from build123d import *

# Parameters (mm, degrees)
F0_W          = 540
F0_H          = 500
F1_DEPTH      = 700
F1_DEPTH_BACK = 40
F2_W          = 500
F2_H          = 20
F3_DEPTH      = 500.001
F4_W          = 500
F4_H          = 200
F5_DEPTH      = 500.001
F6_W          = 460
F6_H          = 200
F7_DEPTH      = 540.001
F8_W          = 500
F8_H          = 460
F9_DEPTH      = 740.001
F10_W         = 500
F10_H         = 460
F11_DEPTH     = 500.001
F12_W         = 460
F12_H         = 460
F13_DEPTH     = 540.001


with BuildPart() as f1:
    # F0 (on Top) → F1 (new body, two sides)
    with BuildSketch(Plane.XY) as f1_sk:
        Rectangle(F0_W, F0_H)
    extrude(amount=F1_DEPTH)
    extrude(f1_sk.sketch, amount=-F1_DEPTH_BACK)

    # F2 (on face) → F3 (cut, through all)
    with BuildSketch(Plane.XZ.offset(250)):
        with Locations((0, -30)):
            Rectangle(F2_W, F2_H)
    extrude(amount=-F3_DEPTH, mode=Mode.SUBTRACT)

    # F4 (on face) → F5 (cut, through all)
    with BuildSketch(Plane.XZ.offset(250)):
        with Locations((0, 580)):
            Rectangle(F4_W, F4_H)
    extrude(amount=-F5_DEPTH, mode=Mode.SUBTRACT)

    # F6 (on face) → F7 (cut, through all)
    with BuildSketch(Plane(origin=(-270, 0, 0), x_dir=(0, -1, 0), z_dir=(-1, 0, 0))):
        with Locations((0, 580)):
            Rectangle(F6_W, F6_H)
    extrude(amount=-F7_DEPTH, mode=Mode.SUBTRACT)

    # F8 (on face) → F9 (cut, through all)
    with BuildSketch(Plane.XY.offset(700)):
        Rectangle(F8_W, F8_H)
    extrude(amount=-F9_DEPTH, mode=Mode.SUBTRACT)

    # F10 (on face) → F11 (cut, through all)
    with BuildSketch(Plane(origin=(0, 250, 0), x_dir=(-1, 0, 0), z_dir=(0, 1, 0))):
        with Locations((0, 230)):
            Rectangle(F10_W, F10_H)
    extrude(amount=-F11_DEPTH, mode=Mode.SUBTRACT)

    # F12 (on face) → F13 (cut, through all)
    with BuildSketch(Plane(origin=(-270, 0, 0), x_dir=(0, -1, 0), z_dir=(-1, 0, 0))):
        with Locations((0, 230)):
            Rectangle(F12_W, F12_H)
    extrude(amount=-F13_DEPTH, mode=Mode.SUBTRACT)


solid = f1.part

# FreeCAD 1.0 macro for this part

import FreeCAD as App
import Part
import Sketcher
Q = App.Units.Quantity

doc = App.newDocument("Part")
body = doc.addObject("PartDesign::Body", "Body")

# Sketch on XY plane
sketch1 = body.newObject("Sketcher::SketchObject", "Sketch")
sketch1.AttachmentSupport = (doc.getObject("XY_Plane"), [""])
sketch1.MapMode = "FlatFace"
sketch1.addGeometry(Part.LineSegment(App.Vector(-270, 250, 0), App.Vector(-270, -250, 0)), False)
sketch1.addGeometry(Part.LineSegment(App.Vector(-270, -250, 0), App.Vector(270, -250, 0)), False)
sketch1.addGeometry(Part.LineSegment(App.Vector(270, -250, 0), App.Vector(270, 250, 0)), False)
sketch1.addGeometry(Part.LineSegment(App.Vector(270, 250, 0), App.Vector(-270, 250, 0)), False)
sketch1.addConstraint(Sketcher.Constraint("Coincident", 0, 2, 1, 1))
sketch1.addConstraint(Sketcher.Constraint("Coincident", 1, 2, 2, 1))
sketch1.addConstraint(Sketcher.Constraint("Coincident", 2, 2, 3, 1))
sketch1.addConstraint(Sketcher.Constraint("Coincident", 3, 2, 0, 1))
sketch1.addConstraint(Sketcher.Constraint("Vertical", 0))
sketch1.addConstraint(Sketcher.Constraint("Horizontal", 1))
sketch1.addConstraint(Sketcher.Constraint("Vertical", 2))
sketch1.addConstraint(Sketcher.Constraint("Horizontal", 3))
sketch1.addConstraint(Sketcher.Constraint("Symmetric", 0, 2, 2, 2, -1, 1))
sketch1.addConstraint(Sketcher.Constraint("DistanceX", 1, 1, 1, 2, Q("540 mm")))
sketch1.addConstraint(Sketcher.Constraint("DistanceY", 0, 2, 0, 1, Q("500 mm")))
pad1 = body.newObject("PartDesign::Pad", "Pad")
pad1.Profile = sketch1
pad1.Type = "TwoLengths"
pad1.Length = 700
pad1.Length2 = 40

# Sketch on XZ plane
sketch2 = body.newObject("Sketcher::SketchObject", "Sketch001")
sketch2.AttachmentSupport = (doc.getObject("XZ_Plane"), [""])
sketch2.MapMode = "FlatFace"
sketch2.AttachmentOffset = App.Placement(App.Vector(0, 0, 250), App.Rotation())
sketch2.addGeometry(Part.LineSegment(App.Vector(-250, -20, 0), App.Vector(-250, -40, 0)), False)
sketch2.addGeometry(Part.LineSegment(App.Vector(-250, -40, 0), App.Vector(250, -40, 0)), False)
sketch2.addGeometry(Part.LineSegment(App.Vector(250, -40, 0), App.Vector(250, -20, 0)), False)
sketch2.addGeometry(Part.LineSegment(App.Vector(250, -20, 0), App.Vector(-250, -20, 0)), False)
sketch2.addConstraint(Sketcher.Constraint("Coincident", 0, 2, 1, 1))
sketch2.addConstraint(Sketcher.Constraint("Coincident", 1, 2, 2, 1))
sketch2.addConstraint(Sketcher.Constraint("Coincident", 2, 2, 3, 1))
sketch2.addConstraint(Sketcher.Constraint("Coincident", 3, 2, 0, 1))
sketch2.addConstraint(Sketcher.Constraint("Vertical", 0))
sketch2.addConstraint(Sketcher.Constraint("Horizontal", 1))
sketch2.addConstraint(Sketcher.Constraint("Vertical", 2))
sketch2.addConstraint(Sketcher.Constraint("Horizontal", 3))
sketch2.addConstraint(Sketcher.Constraint("DistanceX", 1, 1, 1, 2, Q("500 mm")))
sketch2.addConstraint(Sketcher.Constraint("DistanceY", 0, 2, 0, 1, Q("20 mm")))
sketch2.addConstraint(Sketcher.Constraint("DistanceX", 0, 2, -1, 1, Q("250 mm")))
sketch2.addConstraint(Sketcher.Constraint("DistanceY", 0, 2, -1, 1, Q("40 mm")))
pocket1 = body.newObject("PartDesign::Pocket", "Pocket")
pocket1.Profile = sketch2
pocket1.Type = "ThroughAll"

# Sketch on XZ plane
sketch3 = body.newObject("Sketcher::SketchObject", "Sketch002")
sketch3.AttachmentSupport = (doc.getObject("XZ_Plane"), [""])
sketch3.MapMode = "FlatFace"
sketch3.AttachmentOffset = App.Placement(App.Vector(0, 0, 250), App.Rotation())
sketch3.addGeometry(Part.LineSegment(App.Vector(-250, 680, 0), App.Vector(-250, 480, 0)), False)
sketch3.addGeometry(Part.LineSegment(App.Vector(-250, 480, 0), App.Vector(250, 480, 0)), False)
sketch3.addGeometry(Part.LineSegment(App.Vector(250, 480, 0), App.Vector(250, 680, 0)), False)
sketch3.addGeometry(Part.LineSegment(App.Vector(250, 680, 0), App.Vector(-250, 680, 0)), False)
sketch3.addConstraint(Sketcher.Constraint("Coincident", 0, 2, 1, 1))
sketch3.addConstraint(Sketcher.Constraint("Coincident", 1, 2, 2, 1))
sketch3.addConstraint(Sketcher.Constraint("Coincident", 2, 2, 3, 1))
sketch3.addConstraint(Sketcher.Constraint("Coincident", 3, 2, 0, 1))
sketch3.addConstraint(Sketcher.Constraint("Vertical", 0))
sketch3.addConstraint(Sketcher.Constraint("Horizontal", 1))
sketch3.addConstraint(Sketcher.Constraint("Vertical", 2))
sketch3.addConstraint(Sketcher.Constraint("Horizontal", 3))
sketch3.addConstraint(Sketcher.Constraint("DistanceX", 1, 1, 1, 2, Q("500 mm")))
sketch3.addConstraint(Sketcher.Constraint("DistanceY", 0, 2, 0, 1, Q("200 mm")))
sketch3.addConstraint(Sketcher.Constraint("DistanceX", 0, 2, -1, 1, Q("250 mm")))
sketch3.addConstraint(Sketcher.Constraint("DistanceY", -1, 1, 0, 2, Q("480 mm")))
pocket2 = body.newObject("PartDesign::Pocket", "Pocket001")
pocket2.Profile = sketch3
pocket2.Type = "ThroughAll"

# Sketch on YZ plane
sketch4 = body.newObject("Sketcher::SketchObject", "Sketch003")
sketch4.AttachmentSupport = (doc.getObject("YZ_Plane"), [""])
sketch4.MapMode = "FlatFace"
sketch4.AttachmentOffset = App.Placement(App.Vector(0, 0, -270), App.Rotation())
sketch4.addGeometry(Part.LineSegment(App.Vector(230, 680, 0), App.Vector(230, 480, 0)), False)
sketch4.addGeometry(Part.LineSegment(App.Vector(230, 480, 0), App.Vector(-230, 480, 0)), False)
sketch4.addGeometry(Part.LineSegment(App.Vector(-230, 480, 0), App.Vector(-230, 680, 0)), False)
sketch4.addGeometry(Part.LineSegment(App.Vector(-230, 680, 0), App.Vector(230, 680, 0)), False)
sketch4.addConstraint(Sketcher.Constraint("Coincident", 0, 2, 1, 1))
sketch4.addConstraint(Sketcher.Constraint("Coincident", 1, 2, 2, 1))
sketch4.addConstraint(Sketcher.Constraint("Coincident", 2, 2, 3, 1))
sketch4.addConstraint(Sketcher.Constraint("Coincident", 3, 2, 0, 1))
sketch4.addConstraint(Sketcher.Constraint("Vertical", 0))
sketch4.addConstraint(Sketcher.Constraint("Horizontal", 1))
sketch4.addConstraint(Sketcher.Constraint("Vertical", 2))
sketch4.addConstraint(Sketcher.Constraint("Horizontal", 3))
sketch4.addConstraint(Sketcher.Constraint("DistanceX", 1, 2, 1, 1, Q("460 mm")))
sketch4.addConstraint(Sketcher.Constraint("DistanceY", 0, 2, 0, 1, Q("200 mm")))
sketch4.addConstraint(Sketcher.Constraint("DistanceX", -1, 1, 0, 2, Q("230 mm")))
sketch4.addConstraint(Sketcher.Constraint("DistanceY", -1, 1, 0, 2, Q("480 mm")))
pocket3 = body.newObject("PartDesign::Pocket", "Pocket002")
pocket3.Profile = sketch4
pocket3.Type = "ThroughAll"
pocket3.Reversed = True

# Sketch on XY plane
sketch5 = body.newObject("Sketcher::SketchObject", "Sketch004")
sketch5.AttachmentSupport = (doc.getObject("XY_Plane"), [""])
sketch5.MapMode = "FlatFace"
sketch5.AttachmentOffset = App.Placement(App.Vector(0, 0, 700), App.Rotation())
sketch5.addGeometry(Part.LineSegment(App.Vector(-250, 230, 0), App.Vector(-250, -230, 0)), False)
sketch5.addGeometry(Part.LineSegment(App.Vector(-250, -230, 0), App.Vector(250, -230, 0)), False)
sketch5.addGeometry(Part.LineSegment(App.Vector(250, -230, 0), App.Vector(250, 230, 0)), False)
sketch5.addGeometry(Part.LineSegment(App.Vector(250, 230, 0), App.Vector(-250, 230, 0)), False)
sketch5.addConstraint(Sketcher.Constraint("Coincident", 0, 2, 1, 1))
sketch5.addConstraint(Sketcher.Constraint("Coincident", 1, 2, 2, 1))
sketch5.addConstraint(Sketcher.Constraint("Coincident", 2, 2, 3, 1))
sketch5.addConstraint(Sketcher.Constraint("Coincident", 3, 2, 0, 1))
sketch5.addConstraint(Sketcher.Constraint("Vertical", 0))
sketch5.addConstraint(Sketcher.Constraint("Horizontal", 1))
sketch5.addConstraint(Sketcher.Constraint("Vertical", 2))
sketch5.addConstraint(Sketcher.Constraint("Horizontal", 3))
sketch5.addConstraint(Sketcher.Constraint("Symmetric", 0, 2, 2, 2, -1, 1))
sketch5.addConstraint(Sketcher.Constraint("DistanceX", 1, 1, 1, 2, Q("500 mm")))
sketch5.addConstraint(Sketcher.Constraint("DistanceY", 0, 2, 0, 1, Q("460 mm")))
pocket4 = body.newObject("PartDesign::Pocket", "Pocket003")
pocket4.Profile = sketch5
pocket4.Type = "ThroughAll"

# Sketch on XZ plane
sketch6 = body.newObject("Sketcher::SketchObject", "Sketch005")
sketch6.AttachmentSupport = (doc.getObject("XZ_Plane"), [""])
sketch6.MapMode = "FlatFace"
sketch6.AttachmentOffset = App.Placement(App.Vector(0, 0, -250), App.Rotation())
sketch6.addGeometry(Part.LineSegment(App.Vector(250, 460, 0), App.Vector(250, 0, 0)), False)
sketch6.addGeometry(Part.LineSegment(App.Vector(250, 0, 0), App.Vector(-250, 0, 0)), False)
sketch6.addGeometry(Part.LineSegment(App.Vector(-250, 0, 0), App.Vector(-250, 460, 0)), False)
sketch6.addGeometry(Part.LineSegment(App.Vector(-250, 460, 0), App.Vector(250, 460, 0)), False)
sketch6.addConstraint(Sketcher.Constraint("Coincident", 0, 2, 1, 1))
sketch6.addConstraint(Sketcher.Constraint("Coincident", 1, 2, 2, 1))
sketch6.addConstraint(Sketcher.Constraint("Coincident", 2, 2, 3, 1))
sketch6.addConstraint(Sketcher.Constraint("Coincident", 3, 2, 0, 1))
sketch6.addConstraint(Sketcher.Constraint("Vertical", 0))
sketch6.addConstraint(Sketcher.Constraint("Horizontal", 1))
sketch6.addConstraint(Sketcher.Constraint("Vertical", 2))
sketch6.addConstraint(Sketcher.Constraint("Horizontal", 3))
sketch6.addConstraint(Sketcher.Constraint("Symmetric", 0, 2, 1, 2, -1, 1))
sketch6.addConstraint(Sketcher.Constraint("DistanceX", 1, 2, 1, 1, Q("500 mm")))
sketch6.addConstraint(Sketcher.Constraint("DistanceY", 0, 2, 0, 1, Q("460 mm")))
pocket5 = body.newObject("PartDesign::Pocket", "Pocket004")
pocket5.Profile = sketch6
pocket5.Type = "ThroughAll"
pocket5.Reversed = True

# Sketch on YZ plane
sketch7 = body.newObject("Sketcher::SketchObject", "Sketch006")
sketch7.AttachmentSupport = (doc.getObject("YZ_Plane"), [""])
sketch7.MapMode = "FlatFace"
sketch7.AttachmentOffset = App.Placement(App.Vector(0, 0, -270), App.Rotation())
sketch7.addGeometry(Part.LineSegment(App.Vector(230, 460, 0), App.Vector(230, 0, 0)), False)
sketch7.addGeometry(Part.LineSegment(App.Vector(230, 0, 0), App.Vector(-230, 0, 0)), False)
sketch7.addGeometry(Part.LineSegment(App.Vector(-230, 0, 0), App.Vector(-230, 460, 0)), False)
sketch7.addGeometry(Part.LineSegment(App.Vector(-230, 460, 0), App.Vector(230, 460, 0)), False)
sketch7.addConstraint(Sketcher.Constraint("Coincident", 0, 2, 1, 1))
sketch7.addConstraint(Sketcher.Constraint("Coincident", 1, 2, 2, 1))
sketch7.addConstraint(Sketcher.Constraint("Coincident", 2, 2, 3, 1))
sketch7.addConstraint(Sketcher.Constraint("Coincident", 3, 2, 0, 1))
sketch7.addConstraint(Sketcher.Constraint("Vertical", 0))
sketch7.addConstraint(Sketcher.Constraint("Horizontal", 1))
sketch7.addConstraint(Sketcher.Constraint("Vertical", 2))
sketch7.addConstraint(Sketcher.Constraint("Horizontal", 3))
sketch7.addConstraint(Sketcher.Constraint("Symmetric", 0, 2, 1, 2, -1, 1))
sketch7.addConstraint(Sketcher.Constraint("Equal", 3, 0))
sketch7.addConstraint(Sketcher.Constraint("DistanceX", 1, 2, 1, 1, Q("460 mm")))
pocket6 = body.newObject("PartDesign::Pocket", "Pocket005")
pocket6.Profile = sketch7
pocket6.Type = "ThroughAll"
pocket6.Reversed = True

doc.recompute()
